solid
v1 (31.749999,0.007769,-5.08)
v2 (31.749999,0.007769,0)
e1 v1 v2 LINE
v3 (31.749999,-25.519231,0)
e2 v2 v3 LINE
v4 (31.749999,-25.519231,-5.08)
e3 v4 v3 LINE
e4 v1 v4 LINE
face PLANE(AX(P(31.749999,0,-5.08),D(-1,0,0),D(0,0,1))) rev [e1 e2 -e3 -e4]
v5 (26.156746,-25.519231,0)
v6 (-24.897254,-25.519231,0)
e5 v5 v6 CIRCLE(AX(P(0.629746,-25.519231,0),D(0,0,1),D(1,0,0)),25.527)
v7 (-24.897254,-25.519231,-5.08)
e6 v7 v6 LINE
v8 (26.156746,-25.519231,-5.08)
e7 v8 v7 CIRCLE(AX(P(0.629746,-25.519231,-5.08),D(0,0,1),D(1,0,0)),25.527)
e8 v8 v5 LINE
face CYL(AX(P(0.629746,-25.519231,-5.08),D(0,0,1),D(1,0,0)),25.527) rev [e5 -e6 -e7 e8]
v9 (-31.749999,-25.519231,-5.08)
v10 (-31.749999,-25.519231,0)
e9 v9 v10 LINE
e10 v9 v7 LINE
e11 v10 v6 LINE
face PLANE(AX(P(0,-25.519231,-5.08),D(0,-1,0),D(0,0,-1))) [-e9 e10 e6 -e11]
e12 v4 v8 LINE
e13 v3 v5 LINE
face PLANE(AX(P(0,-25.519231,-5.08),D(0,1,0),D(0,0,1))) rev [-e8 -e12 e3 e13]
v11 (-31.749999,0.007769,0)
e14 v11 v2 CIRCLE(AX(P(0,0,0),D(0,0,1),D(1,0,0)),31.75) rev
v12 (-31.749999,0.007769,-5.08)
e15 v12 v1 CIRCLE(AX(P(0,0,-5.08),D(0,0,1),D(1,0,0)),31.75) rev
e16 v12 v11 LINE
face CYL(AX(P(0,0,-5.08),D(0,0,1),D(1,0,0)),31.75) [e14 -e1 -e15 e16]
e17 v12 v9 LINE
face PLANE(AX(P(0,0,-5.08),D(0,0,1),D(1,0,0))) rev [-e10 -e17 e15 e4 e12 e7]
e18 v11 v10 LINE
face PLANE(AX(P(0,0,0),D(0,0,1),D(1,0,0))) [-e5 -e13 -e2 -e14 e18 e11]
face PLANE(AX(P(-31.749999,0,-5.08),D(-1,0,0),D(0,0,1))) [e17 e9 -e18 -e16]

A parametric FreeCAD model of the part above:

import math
import FreeCAD as App
import Part
import Sketcher

V = App.Vector
Q = App.Units.Quantity

doc = App.newDocument("Part")
body = doc.addObject("PartDesign::Body", "Body")

# Sketch on XY plane
sketch1 = body.newObject("Sketcher::SketchObject", "Sketch")
sketch1.AttachmentSupport = (doc.getObject("XY_Plane"), [""])
sketch1.MapMode = "FlatFace"
sketch1.addGeometry([
    Part.LineSegment(V(-32, 0, 0), V(-32, -26, 0)),  # 0
    Part.LineSegment(V(-32, -26, 0), V(-25, -26, 0)),  # 1
    Part.ArcOfCircle(Part.Circle(V(1, -26, 0), V(0, 0, 1), 26), math.radians(90), math.radians(180)),  # 2
    Part.ArcOfCircle(Part.Circle(V(1, -26, 0), V(0, 0, 1), 26), math.radians(0), math.radians(90)),  # 3
    Part.LineSegment(V(26, -26, 0), V(32, -26, 0)),  # 4
    Part.LineSegment(V(32, -26, 0), V(32, 0, 0)),  # 5
    Part.ArcOfCircle(Part.Circle(V(0, 0, 0), V(0, 0, 1), 32), math.radians(0), math.radians(180)),  # 6
], False)
sketch1.addConstraint([
    Sketcher.Constraint("Coincident", 0, 2, 1, 1),
    Sketcher.Constraint("Coincident", 1, 2, 2, 2),
    Sketcher.Constraint("Tangent", 2, 1, 3, 2),
    Sketcher.Constraint("Coincident", 3, 1, 4, 1),
    Sketcher.Constraint("Coincident", 4, 2, 5, 1),
    Sketcher.Constraint("Coincident", 5, 2, 6, 1),
    Sketcher.Constraint("Coincident", 6, 2, 0, 1),
    Sketcher.Constraint("Vertical", 0),
    Sketcher.Constraint("Horizontal", 1),
    Sketcher.Constraint("Horizontal", 4),
    Sketcher.Constraint("Vertical", 5),
    Sketcher.Constraint("Coincident", 6, 3, -1, 1),
    Sketcher.Constraint("Equal", 2, 3),
    Sketcher.Constraint("Horizontal", 3, 3, 0, 2),
    Sketcher.Constraint("Horizontal", 1, 2, 3, 1),
    Sketcher.Constraint("Horizontal", 2, 1, 5, 2),
    Sketcher.Constraint("Horizontal", 5, 2, 6, 2),
    Sketcher.Constraint("Vertical", 3, 3, 2, 1),
    Sketcher.Constraint("Radius", 6, Q("1.25 in")),
    Sketcher.Constraint("Radius", 2, Q("1.005 in")),
    Sketcher.Constraint("DistanceX", 1, 1, 1, 2, Q("6.852745 mm")),
    Sketcher.Constraint("DistanceY", 2, 3, -1, 1, Q("25.519231 mm")),
])
pad1 = body.newObject("PartDesign::Pad", "Pad")
pad1.Profile = sketch1
pad1.Length = Q("0.2 in")
pad1.Reversed = True

doc.recompute()
